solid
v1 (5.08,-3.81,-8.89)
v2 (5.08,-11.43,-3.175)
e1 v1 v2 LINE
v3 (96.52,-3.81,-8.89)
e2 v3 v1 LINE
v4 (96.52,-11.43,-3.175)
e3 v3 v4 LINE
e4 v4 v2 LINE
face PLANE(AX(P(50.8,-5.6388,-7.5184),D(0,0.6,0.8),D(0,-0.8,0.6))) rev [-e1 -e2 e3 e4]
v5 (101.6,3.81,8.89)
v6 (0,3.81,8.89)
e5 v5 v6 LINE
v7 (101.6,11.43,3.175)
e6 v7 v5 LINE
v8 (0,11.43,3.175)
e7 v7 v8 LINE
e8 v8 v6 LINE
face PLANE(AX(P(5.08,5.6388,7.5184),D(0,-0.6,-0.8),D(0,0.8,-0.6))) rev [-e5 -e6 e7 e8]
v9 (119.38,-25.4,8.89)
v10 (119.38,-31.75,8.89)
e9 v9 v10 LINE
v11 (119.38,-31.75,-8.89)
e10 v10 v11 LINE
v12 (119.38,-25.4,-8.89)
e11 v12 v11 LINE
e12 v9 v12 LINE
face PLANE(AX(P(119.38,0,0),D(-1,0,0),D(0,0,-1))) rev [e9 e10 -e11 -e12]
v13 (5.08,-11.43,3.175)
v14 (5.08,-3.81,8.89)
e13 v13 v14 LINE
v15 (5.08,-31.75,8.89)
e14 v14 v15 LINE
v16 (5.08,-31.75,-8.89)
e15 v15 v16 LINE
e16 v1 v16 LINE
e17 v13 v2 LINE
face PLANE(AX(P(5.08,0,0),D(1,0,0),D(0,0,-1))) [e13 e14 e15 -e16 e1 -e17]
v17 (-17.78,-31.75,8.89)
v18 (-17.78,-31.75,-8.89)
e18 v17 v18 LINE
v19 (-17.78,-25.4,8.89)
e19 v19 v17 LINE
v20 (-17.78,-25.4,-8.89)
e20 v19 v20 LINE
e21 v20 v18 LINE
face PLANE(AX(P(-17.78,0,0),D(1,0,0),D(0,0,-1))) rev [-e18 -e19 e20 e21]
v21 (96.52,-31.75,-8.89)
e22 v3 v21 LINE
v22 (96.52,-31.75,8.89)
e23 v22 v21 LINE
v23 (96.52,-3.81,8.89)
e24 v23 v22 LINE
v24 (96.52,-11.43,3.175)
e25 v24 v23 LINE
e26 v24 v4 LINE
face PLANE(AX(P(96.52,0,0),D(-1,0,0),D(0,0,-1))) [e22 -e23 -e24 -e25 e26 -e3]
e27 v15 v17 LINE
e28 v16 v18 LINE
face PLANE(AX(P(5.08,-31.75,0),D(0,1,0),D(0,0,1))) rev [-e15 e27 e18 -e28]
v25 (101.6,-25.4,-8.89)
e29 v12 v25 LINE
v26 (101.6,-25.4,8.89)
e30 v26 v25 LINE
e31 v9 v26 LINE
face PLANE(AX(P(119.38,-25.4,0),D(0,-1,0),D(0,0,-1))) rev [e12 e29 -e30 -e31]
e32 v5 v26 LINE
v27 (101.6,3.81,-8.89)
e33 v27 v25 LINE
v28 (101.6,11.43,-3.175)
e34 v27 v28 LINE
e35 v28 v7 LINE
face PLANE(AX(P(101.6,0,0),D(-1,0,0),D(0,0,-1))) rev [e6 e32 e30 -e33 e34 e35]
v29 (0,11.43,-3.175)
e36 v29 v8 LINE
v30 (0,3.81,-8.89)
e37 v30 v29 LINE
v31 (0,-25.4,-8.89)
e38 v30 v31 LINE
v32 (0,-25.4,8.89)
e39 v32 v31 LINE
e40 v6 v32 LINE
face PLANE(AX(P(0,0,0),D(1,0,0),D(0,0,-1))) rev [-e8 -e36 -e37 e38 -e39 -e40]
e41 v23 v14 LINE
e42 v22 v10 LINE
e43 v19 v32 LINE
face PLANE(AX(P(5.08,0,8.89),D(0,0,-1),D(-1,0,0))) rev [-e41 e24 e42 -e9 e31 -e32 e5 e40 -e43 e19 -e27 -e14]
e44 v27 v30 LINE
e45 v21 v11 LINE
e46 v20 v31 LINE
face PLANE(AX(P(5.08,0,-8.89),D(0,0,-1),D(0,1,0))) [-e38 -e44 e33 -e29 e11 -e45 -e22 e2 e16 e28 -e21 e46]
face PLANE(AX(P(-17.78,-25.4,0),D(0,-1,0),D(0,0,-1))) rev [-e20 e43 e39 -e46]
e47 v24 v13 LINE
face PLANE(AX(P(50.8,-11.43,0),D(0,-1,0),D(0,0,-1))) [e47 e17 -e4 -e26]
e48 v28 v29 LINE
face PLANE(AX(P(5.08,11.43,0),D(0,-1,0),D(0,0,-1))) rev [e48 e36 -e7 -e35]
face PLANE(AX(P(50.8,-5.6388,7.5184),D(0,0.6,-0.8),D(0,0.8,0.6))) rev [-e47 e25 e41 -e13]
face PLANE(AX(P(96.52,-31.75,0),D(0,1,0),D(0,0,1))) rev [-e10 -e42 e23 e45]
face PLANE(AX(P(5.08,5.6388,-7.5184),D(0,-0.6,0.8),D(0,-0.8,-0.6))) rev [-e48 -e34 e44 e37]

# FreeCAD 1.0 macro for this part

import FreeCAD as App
import Part
import Sketcher
Q = App.Units.Quantity


def add_polygon(sketch, points):
    """Adds a closed chain of lines whose ends are joined by coincident constraints."""
    first, n = sketch.GeometryCount, len(points)
    for a, b in zip(points, points[1:] + points[:1]):
        sketch.addGeometry(Part.LineSegment(App.Vector(*a, 0), App.Vector(*b, 0)), False)
    for i in range(n):
        sketch.addConstraint(Sketcher.Constraint("Coincident", first + i, 2, first + (i + 1) % n, 1))

doc = App.newDocument("Part")
params = doc.addObject("Spreadsheet::Sheet", "Params")
for row, (alias, value) in enumerate([
    ("sketch1_width", "1.4 in"),
    ("sketch1_height", "0.7 in"),
    ("sketch1_height2", "0.25 in"),
    ("pad1_length", "0.2 in"),
    ("sketch2_width", "0.3 in"),
    ("sketch2_height", "0.25 in"),
    ("pad2_length", "2 in"),
    ("sketch3_height", "0.7 in"),
    ("sketch3_width", "0.25 in"),
    ("pad3_length", "0.7 in"),
], start=1):
    params.set(f"A{row}", alias)
    params.set(f"B{row}", "=" + value)
    params.setAlias(f"B{row}", alias)

body = doc.addObject("PartDesign::Body", "Body")

sketch1 = body.newObject("Sketcher::SketchObject", "Sketch")
sketch1.AttachmentSupport = (doc.getObject("YZ_Plane"), [""])
sketch1.MapMode = "FlatFace"
add_polygon(sketch1, [(-32, 9), (-32, -9), (4, -9), (11, -3), (11, 3), (4, 9)])
sketch1.addConstraint([
    Sketcher.Constraint("Vertical", 0),
    Sketcher.Constraint("Horizontal", 1),
    Sketcher.Constraint("Vertical", 3),
    Sketcher.Constraint("Horizontal", 5),
    Sketcher.Constraint("Symmetric", 1, 2, 4, 2, -1),
    Sketcher.Constraint("Equal", 2, 4),
    Sketcher.Constraint("DistanceX", 1, 1, 1, 2, Q("1.4 in")),
    Sketcher.Constraint("DistanceY", 0, 2, 0, 1, Q("0.7 in")),
    Sketcher.Constraint("DistanceY", 3, 1, 3, 2, Q("0.25 in")),
    Sketcher.Constraint("DistanceX", 1, 2, 2, 2, Q("0.3 in")),
    Sketcher.Constraint("DistanceX", 0, 2, -1, 1, Q("1.25 in")),
])
sketch1.setExpression("Constraints[12]", "Params.sketch1_width")
sketch1.setExpression("Constraints[13]", "Params.sketch1_height")
sketch1.setExpression("Constraints[14]", "Params.sketch1_height2")
pad1 = body.newObject("PartDesign::Pad", "Pad")
pad1.Profile = sketch1
pad1.setExpression("Length", "Params.pad1_length")

sketch2 = body.newObject("Sketcher::SketchObject", "Sketch001")
sketch2.AttachmentSupport = (doc.getObject("YZ_Plane"), [""])
sketch2.MapMode = "FlatFace"
add_polygon(sketch2, [(-11, 3), (-11, -3), (-4, -9), (4, -9), (11, -3), (11, 3), (4, 9), (-4, 9)])
sketch2.addConstraint([
    Sketcher.Constraint("Vertical", 0),
    Sketcher.Constraint("Horizontal", 2),
    Sketcher.Constraint("Vertical", 4),
    Sketcher.Constraint("Horizontal", 6),
    Sketcher.Constraint("Symmetric", 0, 2, 4, 2, -1, 1),
    Sketcher.Constraint("Symmetric", 1, 2, 5, 2, -1, 1),
    Sketcher.Constraint("Parallel", 3, 7),
    Sketcher.Constraint("Horizontal", 0, 2, 3, 2),
    Sketcher.Constraint("Horizontal", 4, 2, 7, 2),
    Sketcher.Constraint("Vertical", 2, 2, 5, 2),
    Sketcher.Constraint("DistanceX", 2, 1, 2, 2, Q("0.3 in")),
    Sketcher.Constraint("DistanceY", 0, 2, 0, 1, Q("0.25 in")),
    Sketcher.Constraint("DistanceX", 0, 2, 1, 2, Q("0.3 in")),
    Sketcher.Constraint("DistanceY", 2, 2, 5, 2, Q("0.7 in")),
])
sketch2.setExpression("Constraints[18]", "Params.sketch2_width")
sketch2.setExpression("Constraints[19]", "Params.sketch2_height")
pad2 = body.newObject("PartDesign::Pad", "Pad001")
pad2.Profile = sketch2
pad2.setExpression("Length", "Params.pad2_length")

sketch3 = body.newObject("Sketcher::SketchObject", "Sketch002")
sketch3.AttachmentSupport = (doc.getObject("YZ_Plane"), [""])
sketch3.MapMode = "FlatFace"
add_polygon(sketch3, [(-25, 9), (-32, 9), (-32, -9), (-25, -9)])
sketch3.addConstraint([
    Sketcher.Constraint("Horizontal", 0),
    Sketcher.Constraint("Vertical", 1),
    Sketcher.Constraint("Horizontal", 2),
    Sketcher.Constraint("Vertical", 3),
    Sketcher.Constraint("DistanceY", 1, 2, 1, 1, Q("0.7 in")),
    Sketcher.Constraint("DistanceX", 2, 2, -1, 1, Q("1 in")),
    Sketcher.Constraint("DistanceX", 0, 2, 0, 1, Q("0.25 in")),
    Sketcher.Constraint("DistanceY", -1, 1, 0, 2, Q("0.35 in")),
])
sketch3.setExpression("Constraints[8]", "Params.sketch3_height")
sketch3.setExpression("Constraints[10]", "Params.sketch3_width")
pad3 = body.newObject("PartDesign::Pad", "Pad002")
pad3.Profile = sketch3
pad3.setExpression("Length", "Params.pad3_length")
pad3.Reversed = True
body2 = doc.addObject("PartDesign::Body", "Body001")
doc.recompute()

body2.BaseFeature = body
doc.recompute()

mirroring = doc.addObject("Part::Mirroring", "Mirroring")
mirroring.Source = body
mirroring.Base = App.Vector(50.8, 0, 0)
mirroring.Normal = App.Vector(1, 0, 0)
body3 = doc.addObject("PartDesign::Body", "Body002")
body3.BaseFeature = mirroring
boolean = body2.newObject("PartDesign::Boolean", "Boolean")
boolean.Type = "Fuse"
boolean.addObjects([body3])
doc.recompute()
mirroring.Visibility = False

doc.recompute()
